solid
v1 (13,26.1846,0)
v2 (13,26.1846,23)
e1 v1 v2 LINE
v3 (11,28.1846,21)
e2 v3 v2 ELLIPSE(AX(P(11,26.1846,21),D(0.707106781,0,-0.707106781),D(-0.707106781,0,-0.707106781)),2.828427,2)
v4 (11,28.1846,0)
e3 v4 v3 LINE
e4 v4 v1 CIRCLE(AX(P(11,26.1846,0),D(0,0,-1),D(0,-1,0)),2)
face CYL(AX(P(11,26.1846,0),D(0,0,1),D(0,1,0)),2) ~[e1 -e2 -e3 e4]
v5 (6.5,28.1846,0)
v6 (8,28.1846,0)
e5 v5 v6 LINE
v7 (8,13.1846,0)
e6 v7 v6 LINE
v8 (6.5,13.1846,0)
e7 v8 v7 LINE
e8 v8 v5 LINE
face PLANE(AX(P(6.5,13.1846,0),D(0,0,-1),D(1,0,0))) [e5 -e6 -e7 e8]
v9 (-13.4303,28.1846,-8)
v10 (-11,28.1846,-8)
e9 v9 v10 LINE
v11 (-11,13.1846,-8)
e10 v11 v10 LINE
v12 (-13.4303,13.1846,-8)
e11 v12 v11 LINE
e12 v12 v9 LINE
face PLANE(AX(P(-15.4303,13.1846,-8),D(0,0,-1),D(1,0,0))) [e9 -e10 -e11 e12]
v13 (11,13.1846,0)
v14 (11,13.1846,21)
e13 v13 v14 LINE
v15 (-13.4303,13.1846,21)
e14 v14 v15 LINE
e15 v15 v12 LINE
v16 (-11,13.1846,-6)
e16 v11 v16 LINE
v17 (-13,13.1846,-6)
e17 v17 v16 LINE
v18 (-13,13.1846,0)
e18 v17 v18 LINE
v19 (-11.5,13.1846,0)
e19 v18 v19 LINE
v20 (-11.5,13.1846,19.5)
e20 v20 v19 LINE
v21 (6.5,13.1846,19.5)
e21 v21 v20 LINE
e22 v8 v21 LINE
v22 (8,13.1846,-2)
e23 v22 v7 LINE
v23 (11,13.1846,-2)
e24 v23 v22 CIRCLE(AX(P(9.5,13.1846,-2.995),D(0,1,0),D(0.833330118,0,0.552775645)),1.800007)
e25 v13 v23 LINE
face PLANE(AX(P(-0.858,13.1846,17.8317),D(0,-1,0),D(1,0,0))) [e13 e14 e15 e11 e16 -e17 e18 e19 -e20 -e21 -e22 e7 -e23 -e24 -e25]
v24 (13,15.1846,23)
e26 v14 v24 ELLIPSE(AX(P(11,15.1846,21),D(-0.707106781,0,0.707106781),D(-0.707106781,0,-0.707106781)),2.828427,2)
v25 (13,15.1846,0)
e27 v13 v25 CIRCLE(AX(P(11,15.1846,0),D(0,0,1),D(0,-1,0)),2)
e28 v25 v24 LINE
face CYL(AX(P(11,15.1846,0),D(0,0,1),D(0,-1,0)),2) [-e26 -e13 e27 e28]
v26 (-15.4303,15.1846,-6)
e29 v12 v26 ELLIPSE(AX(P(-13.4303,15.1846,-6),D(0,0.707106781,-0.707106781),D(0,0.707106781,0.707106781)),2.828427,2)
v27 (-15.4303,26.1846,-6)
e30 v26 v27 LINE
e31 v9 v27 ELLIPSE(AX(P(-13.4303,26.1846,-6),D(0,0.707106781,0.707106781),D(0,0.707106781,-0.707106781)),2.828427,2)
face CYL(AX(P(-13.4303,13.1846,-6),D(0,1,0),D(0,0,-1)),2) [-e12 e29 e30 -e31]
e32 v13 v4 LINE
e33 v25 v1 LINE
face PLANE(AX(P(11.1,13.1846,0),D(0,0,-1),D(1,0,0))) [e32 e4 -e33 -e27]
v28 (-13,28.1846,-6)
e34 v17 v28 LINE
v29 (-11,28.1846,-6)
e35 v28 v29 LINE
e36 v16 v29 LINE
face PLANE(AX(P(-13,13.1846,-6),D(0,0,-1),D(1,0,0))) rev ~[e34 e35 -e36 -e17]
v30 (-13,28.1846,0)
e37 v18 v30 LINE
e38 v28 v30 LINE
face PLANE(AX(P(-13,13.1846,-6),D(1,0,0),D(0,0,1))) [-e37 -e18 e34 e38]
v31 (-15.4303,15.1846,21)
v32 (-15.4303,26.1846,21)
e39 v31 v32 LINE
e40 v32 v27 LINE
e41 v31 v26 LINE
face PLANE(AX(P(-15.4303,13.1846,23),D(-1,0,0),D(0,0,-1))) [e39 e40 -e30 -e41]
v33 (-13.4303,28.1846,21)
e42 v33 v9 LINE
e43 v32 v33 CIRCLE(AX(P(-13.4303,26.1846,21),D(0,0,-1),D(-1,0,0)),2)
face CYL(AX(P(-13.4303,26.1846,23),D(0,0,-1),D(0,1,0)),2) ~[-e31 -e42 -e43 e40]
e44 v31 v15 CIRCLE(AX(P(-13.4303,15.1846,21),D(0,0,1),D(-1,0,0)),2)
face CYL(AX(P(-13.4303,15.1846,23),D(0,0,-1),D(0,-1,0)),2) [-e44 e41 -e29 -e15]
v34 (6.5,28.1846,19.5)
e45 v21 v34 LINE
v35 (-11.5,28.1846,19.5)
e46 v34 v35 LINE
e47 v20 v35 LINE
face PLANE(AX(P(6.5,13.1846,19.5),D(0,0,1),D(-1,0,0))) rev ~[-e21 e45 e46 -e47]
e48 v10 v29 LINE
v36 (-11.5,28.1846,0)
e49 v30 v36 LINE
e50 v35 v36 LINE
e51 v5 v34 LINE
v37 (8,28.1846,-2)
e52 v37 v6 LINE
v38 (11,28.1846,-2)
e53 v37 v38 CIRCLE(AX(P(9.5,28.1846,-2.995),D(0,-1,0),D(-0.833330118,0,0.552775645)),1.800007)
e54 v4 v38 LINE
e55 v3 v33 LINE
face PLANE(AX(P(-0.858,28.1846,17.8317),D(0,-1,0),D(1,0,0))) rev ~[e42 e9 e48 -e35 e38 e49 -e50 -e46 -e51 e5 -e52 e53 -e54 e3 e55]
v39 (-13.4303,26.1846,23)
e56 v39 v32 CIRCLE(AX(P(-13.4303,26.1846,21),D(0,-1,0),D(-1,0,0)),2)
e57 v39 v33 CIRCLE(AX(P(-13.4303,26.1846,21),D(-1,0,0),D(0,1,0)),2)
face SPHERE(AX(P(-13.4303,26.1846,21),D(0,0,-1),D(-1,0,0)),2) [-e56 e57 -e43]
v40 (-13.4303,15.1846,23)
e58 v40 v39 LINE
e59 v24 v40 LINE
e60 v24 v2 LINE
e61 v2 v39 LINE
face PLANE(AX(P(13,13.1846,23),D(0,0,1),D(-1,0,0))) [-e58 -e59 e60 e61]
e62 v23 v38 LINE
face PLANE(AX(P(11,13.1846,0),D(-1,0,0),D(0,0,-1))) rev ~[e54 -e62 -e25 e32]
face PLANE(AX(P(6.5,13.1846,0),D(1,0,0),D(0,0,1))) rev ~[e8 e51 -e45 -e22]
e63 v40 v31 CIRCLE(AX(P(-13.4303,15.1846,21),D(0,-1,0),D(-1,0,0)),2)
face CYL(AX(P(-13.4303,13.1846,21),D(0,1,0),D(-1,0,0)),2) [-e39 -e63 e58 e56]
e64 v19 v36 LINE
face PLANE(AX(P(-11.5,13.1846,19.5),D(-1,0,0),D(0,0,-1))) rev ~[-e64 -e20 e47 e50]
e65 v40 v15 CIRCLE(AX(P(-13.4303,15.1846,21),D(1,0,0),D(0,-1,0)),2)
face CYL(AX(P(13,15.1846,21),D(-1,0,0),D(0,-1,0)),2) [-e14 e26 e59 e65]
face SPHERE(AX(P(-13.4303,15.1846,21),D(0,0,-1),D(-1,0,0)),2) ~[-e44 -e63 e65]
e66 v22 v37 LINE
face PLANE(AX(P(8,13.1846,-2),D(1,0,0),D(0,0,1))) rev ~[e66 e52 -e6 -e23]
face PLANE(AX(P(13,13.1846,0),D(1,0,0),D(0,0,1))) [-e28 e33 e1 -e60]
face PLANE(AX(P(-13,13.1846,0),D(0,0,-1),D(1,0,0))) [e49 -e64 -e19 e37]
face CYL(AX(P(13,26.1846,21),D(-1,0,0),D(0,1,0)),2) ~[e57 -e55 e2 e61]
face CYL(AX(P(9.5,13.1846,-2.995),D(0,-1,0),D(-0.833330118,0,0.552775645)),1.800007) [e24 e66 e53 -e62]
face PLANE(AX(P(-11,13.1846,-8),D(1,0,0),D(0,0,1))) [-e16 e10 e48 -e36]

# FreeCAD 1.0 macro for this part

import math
import FreeCAD as App
import Part
import Sketcher
Q = App.Units.Quantity


def edges_at(feature, points):
    """Names of the edges that pass closest to the given points."""
    edges = feature.Shape.Edges
    near = lambda p: min(range(len(edges)), key=lambda i: edges[i].distToShape(Part.Vertex(*p))[0])
    return sorted({f"Edge{near(p) + 1}" for p in points})

doc = App.newDocument("Part")
body = doc.addObject("PartDesign::Body", "Body")

# Sketch on XZ plane
sketch1 = body.newObject("Sketcher::SketchObject", "Sketch")
sketch1.AttachmentSupport = (doc.getObject("XZ_Plane"), [""])
sketch1.MapMode = "FlatFace"
sketch1.AttachmentOffset = App.Placement(App.Vector(0, 0, -13.1846), App.Rotation())
sketch1.addGeometry(Part.LineSegment(App.Vector(8, 0, 0), App.Vector(8, -2, 0)), False)
sketch1.addGeometry(Part.ArcOfCircle(Part.Circle(App.Vector(9.5, -3, 0), App.Vector(0, 0, 1), 1.8), math.radians(146), math.radians(394)), False)
sketch1.addGeometry(Part.LineSegment(App.Vector(11, -2, 0), App.Vector(11, 0, 0)), False)
sketch1.addGeometry(Part.LineSegment(App.Vector(11, 0, 0), App.Vector(13, 0, 0)), False)
sketch1.addGeometry(Part.LineSegment(App.Vector(13, 0, 0), App.Vector(13, 23, 0)), False)
sketch1.addGeometry(Part.LineSegment(App.Vector(13, 23, 0), App.Vector(-15.4, 23, 0)), False)
sketch1.addGeometry(Part.LineSegment(App.Vector(-15.4, 23, 0), App.Vector(-15.4, -8, 0)), False)
sketch1.addGeometry(Part.LineSegment(App.Vector(-15.4, -8, 0), App.Vector(-11, -8, 0)), False)
sketch1.addGeometry(Part.LineSegment(App.Vector(-11, -8, 0), App.Vector(-11, -6, 0)), False)
sketch1.addGeometry(Part.LineSegment(App.Vector(-11, -6, 0), App.Vector(-13, -6, 0)), False)
sketch1.addGeometry(Part.LineSegment(App.Vector(-13, -6, 0), App.Vector(-13, 0, 0)), False)
sketch1.addGeometry(Part.LineSegment(App.Vector(-13, 0, 0), App.Vector(-11.5, 0, 0)), False)
sketch1.addGeometry(Part.LineSegment(App.Vector(-11.5, 0, 0), App.Vector(-11.5, 19.5, 0)), False)
sketch1.addGeometry(Part.LineSegment(App.Vector(-11.5, 19.5, 0), App.Vector(6.5, 19.5, 0)), False)
sketch1.addGeometry(Part.LineSegment(App.Vector(6.5, 19.5, 0), App.Vector(6.5, 0, 0)), False)
sketch1.addGeometry(Part.LineSegment(App.Vector(6.5, 0, 0), App.Vector(8, 0, 0)), False)
sketch1.addConstraint(Sketcher.Constraint("Coincident", 0, 2, 1, 1))
sketch1.addConstraint(Sketcher.Constraint("Coincident", 1, 2, 2, 1))
sketch1.addConstraint(Sketcher.Constraint("Coincident", 2, 2, 3, 1))
sketch1.addConstraint(Sketcher.Constraint("Coincident", 3, 2, 4, 1))
sketch1.addConstraint(Sketcher.Constraint("Coincident", 4, 2, 5, 1))
sketch1.addConstraint(Sketcher.Constraint("Coincident", 5, 2, 6, 1))
sketch1.addConstraint(Sketcher.Constraint("Coincident", 6, 2, 7, 1))
sketch1.addConstraint(Sketcher.Constraint("Coincident", 7, 2, 8, 1))
sketch1.addConstraint(Sketcher.Constraint("Coincident", 8, 2, 9, 1))
sketch1.addConstraint(Sketcher.Constraint("Coincident", 9, 2, 10, 1))
sketch1.addConstraint(Sketcher.Constraint("Coincident", 10, 2, 11, 1))
sketch1.addConstraint(Sketcher.Constraint("Coincident", 11, 2, 12, 1))
sketch1.addConstraint(Sketcher.Constraint("Coincident", 12, 2, 13, 1))
sketch1.addConstraint(Sketcher.Constraint("Coincident", 13, 2, 14, 1))
sketch1.addConstraint(Sketcher.Constraint("Coincident", 14, 2, 15, 1))
sketch1.addConstraint(Sketcher.Constraint("Coincident", 15, 2, 0, 1))
sketch1.addConstraint(Sketcher.Constraint("Vertical", 0))
sketch1.addConstraint(Sketcher.Constraint("Vertical", 2))
sketch1.addConstraint(Sketcher.Constraint("Horizontal", 3))
sketch1.addConstraint(Sketcher.Constraint("Vertical", 4))
sketch1.addConstraint(Sketcher.Constraint("Horizontal", 5))
sketch1.addConstraint(Sketcher.Constraint("Vertical", 6))
sketch1.addConstraint(Sketcher.Constraint("Horizontal", 7))
sketch1.addConstraint(Sketcher.Constraint("Vertical", 8))
sketch1.addConstraint(Sketcher.Constraint("Horizontal", 9))
sketch1.addConstraint(Sketcher.Constraint("Vertical", 10))
sketch1.addConstraint(Sketcher.Constraint("Horizontal", 11))
sketch1.addConstraint(Sketcher.Constraint("Vertical", 12))
sketch1.addConstraint(Sketcher.Constraint("Horizontal", 13))
sketch1.addConstraint(Sketcher.Constraint("Vertical", 14))
sketch1.addConstraint(Sketcher.Constraint("Horizontal", 15))
sketch1.addConstraint(Sketcher.Constraint("Symmetric", 3, 2, 10, 2, -1, 1))
sketch1.addConstraint(Sketcher.Constraint("PointOnObject", 2, 2, -1))
sketch1.addConstraint(Sketcher.Constraint("PointOnObject", 14, 2, -1))
sketch1.addConstraint(Sketcher.Constraint("Horizontal", 0, 2, 1, 2))
sketch1.addConstraint(Sketcher.Constraint("Equal", 3, 9))
sketch1.addConstraint(Sketcher.Constraint("Equal", 11, 15))
sketch1.addConstraint(Sketcher.Constraint("Equal", 9, 0))
sketch1.addConstraint(Sketcher.Constraint("Equal", 2, 8))
sketch1.addConstraint(Sketcher.Constraint("DistanceX", 3, 1, 3, 2, Q("2 mm")))
sketch1.addConstraint(Sketcher.Constraint("DistanceY", 4, 1, 4, 2, Q("23 mm")))
sketch1.addConstraint(Sketcher.Constraint("Radius", 1, Q("1.8 mm")))
sketch1.addConstraint(Sketcher.Constraint("DistanceX", 13, 1, 13, 2, Q("18 mm")))
sketch1.addConstraint(Sketcher.Constraint("DistanceY", 6, 2, 6, 1, Q("31 mm")))
sketch1.addConstraint(Sketcher.Constraint("DistanceX", 11, 1, 11, 2, Q("1.5 mm")))
sketch1.addConstraint(Sketcher.Constraint("DistanceY", 12, 1, 12, 2, Q("19.5 mm")))
sketch1.addConstraint(Sketcher.Constraint("DistanceX", -1, 1, 0, 2, Q("8 mm")))
sketch1.addConstraint(Sketcher.Constraint("DistanceX", 5, 2, 5, 1, Q("28.4303 mm")))
pad1 = body.newObject("PartDesign::Pad", "Pad")
pad1.Profile = sketch1
pad1.Length = 15
pad1.Reversed = True
doc.recompute()

fillet = body.newObject("PartDesign::Fillet", "Fillet")
fillet.Base = (pad1, edges_at(pad1, [
    (-15.43, 20.685, -8),
    (-15.43, 13.185, 7.5),
    (-15.43, 28.185, 7.5),
    (-15.43, 20.685, 23),
    (-1.215, 13.185, 23),
    (-1.215, 28.185, 23),
    (13, 13.185, 11.5),
    (13, 28.185, 11.5),
]))
fillet.Radius = 2

doc.recompute()
